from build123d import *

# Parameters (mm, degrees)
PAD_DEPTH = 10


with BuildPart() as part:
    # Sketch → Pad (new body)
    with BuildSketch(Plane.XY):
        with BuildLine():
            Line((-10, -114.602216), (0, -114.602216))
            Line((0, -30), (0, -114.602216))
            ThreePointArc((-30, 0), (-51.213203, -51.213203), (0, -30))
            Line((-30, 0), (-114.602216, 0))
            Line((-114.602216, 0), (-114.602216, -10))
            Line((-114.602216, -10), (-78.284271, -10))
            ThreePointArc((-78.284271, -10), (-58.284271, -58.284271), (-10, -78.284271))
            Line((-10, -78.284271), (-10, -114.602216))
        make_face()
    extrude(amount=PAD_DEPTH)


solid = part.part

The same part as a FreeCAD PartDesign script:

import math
import FreeCAD as App
import Part
import Sketcher
from FreeCAD import Vector

doc = App.newDocument("Part")
body = doc.addObject("PartDesign::Body", "Body")

sketch1 = doc.addObject("Sketcher::SketchObject", "Sketch")
body.addObject(sketch1)
sketch1.AttachmentSupport = (doc.XY_Plane, [""])
sketch1.MapMode = "FlatFace"
sketch1.addGeometry([
    Part.LineSegment(Vector(-10, -115, 0), Vector(0, -115, 0)),
    Part.LineSegment(Vector(0, -115, 0), Vector(0, -30, 0)),
    Part.ArcOfCircle(Part.Circle(Vector(-30, -30, 0), Vector(0, 0, 1), 30), math.radians(90), math.radians(360)),
    Part.LineSegment(Vector(-30, 0, 0), Vector(-115, 0, 0)),
    Part.LineSegment(Vector(-115, 0, 0), Vector(-115, -10, 0)),
    Part.LineSegment(Vector(-115, -10, 0), Vector(-78, -10, 0)),
    Part.ArcOfCircle(Part.Circle(Vector(-10, -10, 0), Vector(0, 0, 1), 68), math.radians(-180), math.radians(-90)),
    Part.LineSegment(Vector(-10, -78, 0), Vector(-10, -115, 0)),
], False)
sketch1.addConstraint([
    Sketcher.Constraint("Coincident", 0, 2, 1, 1),
    Sketcher.Constraint("Tangent", 1, 2, 2, 2),
    Sketcher.Constraint("Tangent", 2, 1, 3, 1),
    Sketcher.Constraint("Coincident", 3, 2, 4, 1),
    Sketcher.Constraint("Coincident", 4, 2, 5, 1),
    Sketcher.Constraint("Coincident", 5, 2, 6, 1),
    Sketcher.Constraint("Coincident", 6, 2, 7, 1),
    Sketcher.Constraint("Coincident", 7, 2, 0, 1),
    Sketcher.Constraint("Horizontal", 0),
    Sketcher.Constraint("Vertical", 1),
    Sketcher.Constraint("Horizontal", 3),
    Sketcher.Constraint("Vertical", 4),
    Sketcher.Constraint("Horizontal", 5),
    Sketcher.Constraint("Vertical", 7),
    Sketcher.Constraint("PointOnObject", 0, 2, -2),
    Sketcher.Constraint("PointOnObject", 2, 1, -1),
    Sketcher.Constraint("Horizontal", 6, 3, 4, 2),
    Sketcher.Constraint("Equal", 3, 1),
    Sketcher.Constraint("Equal", 0, 4),
    Sketcher.Constraint("Equal", 5, 7),
    Sketcher.Constraint("Radius", 2, 30.0),
    Sketcher.Constraint("DistanceX", 0, 1, 0, 2, 10.0),
    Sketcher.Constraint("Radius", 6, 68.284271),
    Sketcher.Constraint("DistanceX", 3, 2, 3, 1, 84.602216),
])
pad1 = doc.addObject("PartDesign::Pad", "Pad")
body.addObject(pad1)
pad1.Profile = sketch1
pad1.Length = 10

doc.recompute()
